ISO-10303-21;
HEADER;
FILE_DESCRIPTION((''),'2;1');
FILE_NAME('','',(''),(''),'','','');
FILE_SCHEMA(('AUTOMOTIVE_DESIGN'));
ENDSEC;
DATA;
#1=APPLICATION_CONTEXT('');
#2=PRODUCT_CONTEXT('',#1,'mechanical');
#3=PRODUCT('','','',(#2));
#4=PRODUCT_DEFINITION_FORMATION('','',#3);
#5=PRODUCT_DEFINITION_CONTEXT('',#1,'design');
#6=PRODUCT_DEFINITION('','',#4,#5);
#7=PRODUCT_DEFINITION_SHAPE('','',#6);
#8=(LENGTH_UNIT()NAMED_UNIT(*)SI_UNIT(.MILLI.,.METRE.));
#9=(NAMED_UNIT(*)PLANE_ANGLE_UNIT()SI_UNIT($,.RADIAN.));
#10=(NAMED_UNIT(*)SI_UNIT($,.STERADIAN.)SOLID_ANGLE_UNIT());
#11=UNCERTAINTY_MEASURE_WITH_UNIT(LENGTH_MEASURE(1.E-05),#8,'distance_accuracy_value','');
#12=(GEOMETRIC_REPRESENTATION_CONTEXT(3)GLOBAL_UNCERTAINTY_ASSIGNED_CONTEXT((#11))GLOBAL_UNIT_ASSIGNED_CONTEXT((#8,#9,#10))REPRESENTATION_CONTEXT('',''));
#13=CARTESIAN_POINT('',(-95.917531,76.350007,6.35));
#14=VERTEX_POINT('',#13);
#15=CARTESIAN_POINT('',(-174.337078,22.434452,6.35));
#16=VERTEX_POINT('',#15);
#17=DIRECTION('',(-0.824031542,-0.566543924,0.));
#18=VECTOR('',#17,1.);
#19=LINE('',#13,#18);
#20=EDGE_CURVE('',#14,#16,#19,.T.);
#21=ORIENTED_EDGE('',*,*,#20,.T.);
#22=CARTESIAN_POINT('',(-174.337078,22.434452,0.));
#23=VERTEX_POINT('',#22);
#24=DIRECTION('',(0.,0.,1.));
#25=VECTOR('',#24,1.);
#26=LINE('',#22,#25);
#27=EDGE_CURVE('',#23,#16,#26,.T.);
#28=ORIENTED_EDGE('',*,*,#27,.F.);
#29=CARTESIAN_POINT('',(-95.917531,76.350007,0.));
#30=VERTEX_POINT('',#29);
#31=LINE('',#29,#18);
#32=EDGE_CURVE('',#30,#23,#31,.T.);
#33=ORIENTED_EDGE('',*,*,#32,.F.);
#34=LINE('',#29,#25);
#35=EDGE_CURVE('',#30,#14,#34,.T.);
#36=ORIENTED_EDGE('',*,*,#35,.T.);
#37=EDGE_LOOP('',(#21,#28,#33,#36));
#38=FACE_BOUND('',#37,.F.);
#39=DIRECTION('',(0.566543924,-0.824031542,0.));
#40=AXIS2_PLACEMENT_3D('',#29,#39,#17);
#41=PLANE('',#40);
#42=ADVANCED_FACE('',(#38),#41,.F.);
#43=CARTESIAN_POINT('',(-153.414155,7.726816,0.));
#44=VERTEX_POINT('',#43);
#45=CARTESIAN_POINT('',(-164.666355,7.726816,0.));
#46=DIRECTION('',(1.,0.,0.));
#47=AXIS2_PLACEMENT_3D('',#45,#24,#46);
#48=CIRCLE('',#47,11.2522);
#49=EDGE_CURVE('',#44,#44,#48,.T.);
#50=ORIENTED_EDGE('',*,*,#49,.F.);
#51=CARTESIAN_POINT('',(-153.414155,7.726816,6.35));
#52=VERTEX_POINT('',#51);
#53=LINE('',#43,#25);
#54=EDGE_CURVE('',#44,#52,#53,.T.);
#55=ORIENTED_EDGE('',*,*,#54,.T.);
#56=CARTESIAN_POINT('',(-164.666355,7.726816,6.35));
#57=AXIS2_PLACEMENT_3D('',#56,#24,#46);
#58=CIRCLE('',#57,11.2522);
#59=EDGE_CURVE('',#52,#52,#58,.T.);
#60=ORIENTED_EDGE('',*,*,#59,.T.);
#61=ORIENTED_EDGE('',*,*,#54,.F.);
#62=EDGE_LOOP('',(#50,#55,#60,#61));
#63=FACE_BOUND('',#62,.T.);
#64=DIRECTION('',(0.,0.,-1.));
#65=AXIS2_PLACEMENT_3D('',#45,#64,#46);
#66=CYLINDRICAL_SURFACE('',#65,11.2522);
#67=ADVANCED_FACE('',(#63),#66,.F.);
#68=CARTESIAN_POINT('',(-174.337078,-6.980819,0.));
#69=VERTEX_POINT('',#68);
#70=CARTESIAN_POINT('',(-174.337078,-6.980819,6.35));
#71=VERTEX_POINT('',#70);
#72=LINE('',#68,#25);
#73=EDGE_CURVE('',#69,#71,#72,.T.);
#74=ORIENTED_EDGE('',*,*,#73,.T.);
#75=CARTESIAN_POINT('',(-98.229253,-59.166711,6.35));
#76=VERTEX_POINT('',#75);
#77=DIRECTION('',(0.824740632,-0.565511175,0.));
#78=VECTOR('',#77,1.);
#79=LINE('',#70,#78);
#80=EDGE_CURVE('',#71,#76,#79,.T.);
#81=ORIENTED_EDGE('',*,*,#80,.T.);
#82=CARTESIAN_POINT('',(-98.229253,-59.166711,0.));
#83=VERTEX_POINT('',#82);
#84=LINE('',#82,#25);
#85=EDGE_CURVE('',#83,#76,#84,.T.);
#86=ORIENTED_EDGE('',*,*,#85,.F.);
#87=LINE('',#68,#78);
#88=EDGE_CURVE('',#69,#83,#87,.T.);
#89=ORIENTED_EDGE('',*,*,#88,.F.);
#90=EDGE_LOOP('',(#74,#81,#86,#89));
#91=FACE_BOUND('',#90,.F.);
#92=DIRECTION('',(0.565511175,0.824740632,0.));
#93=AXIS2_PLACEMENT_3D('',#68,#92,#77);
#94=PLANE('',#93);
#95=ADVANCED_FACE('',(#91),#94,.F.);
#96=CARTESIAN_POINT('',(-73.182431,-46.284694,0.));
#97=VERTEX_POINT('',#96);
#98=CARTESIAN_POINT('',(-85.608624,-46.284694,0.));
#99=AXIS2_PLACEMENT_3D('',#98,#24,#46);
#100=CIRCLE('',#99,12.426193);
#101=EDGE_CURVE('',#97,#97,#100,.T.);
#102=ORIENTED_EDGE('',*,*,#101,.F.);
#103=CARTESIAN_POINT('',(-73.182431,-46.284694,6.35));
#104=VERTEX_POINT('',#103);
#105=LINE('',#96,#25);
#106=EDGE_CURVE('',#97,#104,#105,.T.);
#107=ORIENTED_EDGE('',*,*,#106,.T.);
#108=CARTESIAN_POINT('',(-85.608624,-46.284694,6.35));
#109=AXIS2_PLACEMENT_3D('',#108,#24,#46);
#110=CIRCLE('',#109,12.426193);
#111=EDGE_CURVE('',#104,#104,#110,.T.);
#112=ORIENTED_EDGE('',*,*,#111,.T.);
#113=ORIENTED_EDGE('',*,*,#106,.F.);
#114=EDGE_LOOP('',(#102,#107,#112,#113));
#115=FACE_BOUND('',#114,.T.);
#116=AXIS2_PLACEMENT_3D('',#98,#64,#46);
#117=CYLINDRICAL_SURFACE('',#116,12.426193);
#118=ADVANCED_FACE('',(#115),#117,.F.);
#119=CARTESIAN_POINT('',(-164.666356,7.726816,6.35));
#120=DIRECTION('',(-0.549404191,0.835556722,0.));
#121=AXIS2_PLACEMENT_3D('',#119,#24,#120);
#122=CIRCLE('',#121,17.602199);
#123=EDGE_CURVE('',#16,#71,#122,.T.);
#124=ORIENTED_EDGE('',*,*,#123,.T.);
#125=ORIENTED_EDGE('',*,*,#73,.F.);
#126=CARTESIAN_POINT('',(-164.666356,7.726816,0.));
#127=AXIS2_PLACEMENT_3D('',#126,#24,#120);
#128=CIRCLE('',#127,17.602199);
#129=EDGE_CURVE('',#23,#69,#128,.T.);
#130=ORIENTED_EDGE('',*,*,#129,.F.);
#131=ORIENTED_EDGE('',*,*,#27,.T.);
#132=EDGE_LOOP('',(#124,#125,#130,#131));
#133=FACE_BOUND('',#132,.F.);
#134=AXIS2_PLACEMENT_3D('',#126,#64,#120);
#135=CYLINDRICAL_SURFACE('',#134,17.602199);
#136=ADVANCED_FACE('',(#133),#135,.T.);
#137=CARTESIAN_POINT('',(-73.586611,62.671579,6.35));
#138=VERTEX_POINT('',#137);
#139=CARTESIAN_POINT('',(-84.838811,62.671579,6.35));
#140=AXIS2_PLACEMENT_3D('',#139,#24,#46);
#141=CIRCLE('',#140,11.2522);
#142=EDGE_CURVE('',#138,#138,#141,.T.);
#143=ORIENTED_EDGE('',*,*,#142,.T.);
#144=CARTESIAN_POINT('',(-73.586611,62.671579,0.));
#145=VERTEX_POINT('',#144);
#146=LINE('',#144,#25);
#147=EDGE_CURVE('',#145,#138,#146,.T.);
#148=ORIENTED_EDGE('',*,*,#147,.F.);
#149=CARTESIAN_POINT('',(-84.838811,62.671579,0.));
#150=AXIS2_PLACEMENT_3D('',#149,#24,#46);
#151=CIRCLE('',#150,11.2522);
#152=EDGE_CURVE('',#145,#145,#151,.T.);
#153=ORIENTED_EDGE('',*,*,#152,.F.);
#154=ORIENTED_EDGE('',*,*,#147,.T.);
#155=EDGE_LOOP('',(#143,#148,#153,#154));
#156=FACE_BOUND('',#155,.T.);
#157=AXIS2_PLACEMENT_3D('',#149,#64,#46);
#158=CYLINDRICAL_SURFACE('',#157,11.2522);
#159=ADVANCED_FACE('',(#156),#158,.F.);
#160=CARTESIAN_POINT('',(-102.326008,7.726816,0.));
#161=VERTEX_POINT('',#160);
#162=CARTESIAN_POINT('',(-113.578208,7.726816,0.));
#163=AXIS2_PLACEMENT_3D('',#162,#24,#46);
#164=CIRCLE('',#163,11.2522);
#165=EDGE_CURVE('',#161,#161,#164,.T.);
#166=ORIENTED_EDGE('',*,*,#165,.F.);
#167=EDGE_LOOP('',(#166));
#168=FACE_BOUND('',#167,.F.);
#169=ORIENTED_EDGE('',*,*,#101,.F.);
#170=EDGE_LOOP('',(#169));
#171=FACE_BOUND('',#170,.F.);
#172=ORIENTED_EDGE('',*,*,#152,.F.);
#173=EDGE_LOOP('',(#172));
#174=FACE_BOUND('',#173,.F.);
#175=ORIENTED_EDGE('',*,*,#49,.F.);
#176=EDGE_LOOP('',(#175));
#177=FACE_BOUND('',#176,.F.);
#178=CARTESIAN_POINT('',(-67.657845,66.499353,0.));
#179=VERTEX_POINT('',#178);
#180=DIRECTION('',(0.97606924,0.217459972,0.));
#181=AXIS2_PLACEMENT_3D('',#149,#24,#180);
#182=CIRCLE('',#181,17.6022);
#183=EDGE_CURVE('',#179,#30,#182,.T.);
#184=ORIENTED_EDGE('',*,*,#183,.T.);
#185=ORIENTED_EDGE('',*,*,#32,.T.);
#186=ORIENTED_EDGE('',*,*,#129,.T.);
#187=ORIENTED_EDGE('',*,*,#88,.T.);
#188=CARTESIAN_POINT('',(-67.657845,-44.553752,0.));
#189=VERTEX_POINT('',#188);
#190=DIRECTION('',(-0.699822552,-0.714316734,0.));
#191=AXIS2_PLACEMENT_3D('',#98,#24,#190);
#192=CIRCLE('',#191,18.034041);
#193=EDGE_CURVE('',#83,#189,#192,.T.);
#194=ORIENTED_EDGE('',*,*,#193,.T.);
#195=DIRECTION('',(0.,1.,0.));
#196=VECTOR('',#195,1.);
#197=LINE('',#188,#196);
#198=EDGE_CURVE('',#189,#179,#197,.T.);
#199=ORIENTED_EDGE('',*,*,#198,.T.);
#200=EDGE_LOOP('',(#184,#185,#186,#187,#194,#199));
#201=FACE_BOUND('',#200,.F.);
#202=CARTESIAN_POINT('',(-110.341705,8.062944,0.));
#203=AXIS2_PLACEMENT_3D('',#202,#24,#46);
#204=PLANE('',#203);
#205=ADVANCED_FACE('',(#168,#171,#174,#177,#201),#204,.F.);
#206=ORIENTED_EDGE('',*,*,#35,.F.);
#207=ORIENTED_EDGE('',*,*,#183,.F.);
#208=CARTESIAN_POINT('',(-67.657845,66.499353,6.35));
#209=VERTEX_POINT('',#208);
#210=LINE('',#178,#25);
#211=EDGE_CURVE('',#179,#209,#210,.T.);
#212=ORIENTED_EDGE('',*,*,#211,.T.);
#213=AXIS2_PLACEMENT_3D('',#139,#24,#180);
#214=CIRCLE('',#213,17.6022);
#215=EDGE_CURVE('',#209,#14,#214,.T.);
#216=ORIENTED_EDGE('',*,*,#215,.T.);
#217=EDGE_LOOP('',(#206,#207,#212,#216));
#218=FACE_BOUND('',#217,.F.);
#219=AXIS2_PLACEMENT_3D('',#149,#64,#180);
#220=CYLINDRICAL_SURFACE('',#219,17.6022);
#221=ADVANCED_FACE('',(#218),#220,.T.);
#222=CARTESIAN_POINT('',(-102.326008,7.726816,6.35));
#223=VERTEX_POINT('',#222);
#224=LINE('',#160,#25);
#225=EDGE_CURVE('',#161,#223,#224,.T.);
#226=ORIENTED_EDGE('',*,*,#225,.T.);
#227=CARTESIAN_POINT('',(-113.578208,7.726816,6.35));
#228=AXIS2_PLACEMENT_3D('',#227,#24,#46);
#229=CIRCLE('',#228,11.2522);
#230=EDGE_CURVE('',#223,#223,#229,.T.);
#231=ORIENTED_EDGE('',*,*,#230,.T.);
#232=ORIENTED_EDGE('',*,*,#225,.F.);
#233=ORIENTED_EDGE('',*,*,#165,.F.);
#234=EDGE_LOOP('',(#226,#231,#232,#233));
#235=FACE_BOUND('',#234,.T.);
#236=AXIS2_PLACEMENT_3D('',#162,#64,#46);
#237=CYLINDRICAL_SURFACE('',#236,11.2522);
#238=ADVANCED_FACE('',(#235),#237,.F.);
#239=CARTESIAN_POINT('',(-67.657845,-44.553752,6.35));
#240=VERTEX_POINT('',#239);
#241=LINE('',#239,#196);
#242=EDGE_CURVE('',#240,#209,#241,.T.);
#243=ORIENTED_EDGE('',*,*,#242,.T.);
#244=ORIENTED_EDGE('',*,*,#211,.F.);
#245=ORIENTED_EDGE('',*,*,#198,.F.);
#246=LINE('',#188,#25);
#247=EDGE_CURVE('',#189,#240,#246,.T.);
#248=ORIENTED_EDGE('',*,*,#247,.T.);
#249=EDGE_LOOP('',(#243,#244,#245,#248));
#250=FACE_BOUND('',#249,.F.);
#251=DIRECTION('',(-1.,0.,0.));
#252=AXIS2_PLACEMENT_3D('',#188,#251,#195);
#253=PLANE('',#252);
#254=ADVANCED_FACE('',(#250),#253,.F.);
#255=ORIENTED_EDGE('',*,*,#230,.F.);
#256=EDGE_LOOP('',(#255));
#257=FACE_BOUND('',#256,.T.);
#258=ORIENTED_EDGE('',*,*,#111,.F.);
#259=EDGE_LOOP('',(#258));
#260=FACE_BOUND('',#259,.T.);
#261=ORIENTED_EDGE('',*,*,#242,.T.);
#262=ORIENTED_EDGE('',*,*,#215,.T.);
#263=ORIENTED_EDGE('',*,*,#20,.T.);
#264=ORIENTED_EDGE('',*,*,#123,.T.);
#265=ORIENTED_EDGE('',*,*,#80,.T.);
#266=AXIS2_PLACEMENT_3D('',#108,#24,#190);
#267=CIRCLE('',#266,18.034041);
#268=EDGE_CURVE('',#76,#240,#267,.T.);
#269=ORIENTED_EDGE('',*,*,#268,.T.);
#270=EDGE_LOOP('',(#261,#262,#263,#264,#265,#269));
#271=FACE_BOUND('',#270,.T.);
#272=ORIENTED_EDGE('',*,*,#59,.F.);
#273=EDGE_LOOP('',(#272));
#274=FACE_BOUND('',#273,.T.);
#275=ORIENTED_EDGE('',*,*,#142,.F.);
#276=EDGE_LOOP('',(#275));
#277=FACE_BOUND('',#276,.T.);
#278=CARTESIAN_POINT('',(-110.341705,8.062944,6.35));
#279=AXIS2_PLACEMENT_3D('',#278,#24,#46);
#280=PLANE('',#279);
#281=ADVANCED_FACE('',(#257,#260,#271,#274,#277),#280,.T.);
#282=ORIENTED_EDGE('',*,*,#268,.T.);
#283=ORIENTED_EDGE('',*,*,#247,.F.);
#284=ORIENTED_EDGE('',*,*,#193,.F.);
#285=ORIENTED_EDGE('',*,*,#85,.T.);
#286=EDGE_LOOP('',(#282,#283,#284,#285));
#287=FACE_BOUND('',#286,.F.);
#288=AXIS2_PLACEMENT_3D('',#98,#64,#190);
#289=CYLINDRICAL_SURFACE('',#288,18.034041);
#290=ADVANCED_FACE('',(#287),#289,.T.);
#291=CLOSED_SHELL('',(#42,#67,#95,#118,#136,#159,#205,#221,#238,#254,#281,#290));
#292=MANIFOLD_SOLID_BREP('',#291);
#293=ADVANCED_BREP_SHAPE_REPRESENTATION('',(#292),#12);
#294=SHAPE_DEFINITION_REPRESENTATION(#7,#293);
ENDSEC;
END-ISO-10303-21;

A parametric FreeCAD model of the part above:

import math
import FreeCAD as App
import Part
import Sketcher

V = App.Vector
Q = App.Units.Quantity

doc = App.newDocument("Part")
params = doc.addObject("Spreadsheet::Sheet", "Params")
for row, (alias, value) in enumerate([
    ("sketch1_diameter", "0.886 in"),
    ("sketch1_radius", "0.693 in"),
    ("pad1_length", "0.25 in"),
], start=1):
    params.set(f"A{row}", alias)
    params.set(f"B{row}", "=" + value)
    params.setAlias(f"B{row}", alias)

body = doc.addObject("PartDesign::Body", "Body")

# Sketch on XY plane
sketch1 = body.newObject("Sketcher::SketchObject", "Sketch")
sketch1.AttachmentSupport = (doc.getObject("XY_Plane"), [""])
sketch1.MapMode = "FlatFace"
sketch1.addGeometry(Part.LineSegment(V(-68, -45, 0), V(-68, 66, 0)), False)
sketch1.addGeometry(Part.ArcOfCircle(Part.Circle(V(-85, 63, 0), V(0, 0, 1), 18), math.radians(13), math.radians(129)), False)
sketch1.addGeometry(Part.LineSegment(V(-96, 76, 0), V(-174, 22, 0)), False)
sketch1.addGeometry(Part.ArcOfCircle(Part.Circle(V(-165, 8, 0), V(0, 0, 1), 18), math.radians(123), math.radians(237)), False)
sketch1.addGeometry(Part.LineSegment(V(-174, -7, 0), V(-98, -59, 0)), False)
sketch1.addGeometry(Part.ArcOfCircle(Part.Circle(V(-86, -46, 0), V(0, 0, 1), 18), math.radians(-134), math.radians(6)), False)
sketch1.addGeometry(Part.Circle(V(-86, -46, 0), V(0, 0, 1), 12), False)
sketch1.addGeometry(Part.Circle(V(-165, 8, 0), V(0, 0, 1), 11), False)
sketch1.addGeometry(Part.Circle(V(-114, 8, 0), V(0, 0, 1), 11), False)
sketch1.addGeometry(Part.Circle(V(-85, 63, 0), V(0, 0, 1), 11), False)
sketch1.addConstraint(Sketcher.Constraint("Coincident", 0, 2, 1, 1))
sketch1.addConstraint(Sketcher.Constraint("Coincident", 1, 2, 2, 1))
sketch1.addConstraint(Sketcher.Constraint("Coincident", 2, 2, 3, 1))
sketch1.addConstraint(Sketcher.Constraint("Coincident", 3, 2, 4, 1))
sketch1.addConstraint(Sketcher.Constraint("Coincident", 4, 2, 5, 1))
sketch1.addConstraint(Sketcher.Constraint("Coincident", 5, 2, 0, 1))
sketch1.addConstraint(Sketcher.Constraint("Vertical", 0))
sketch1.addConstraint(Sketcher.Constraint("Coincident", 6, 3, 5, 3))
sketch1.addConstraint(Sketcher.Constraint("Coincident", 7, 3, 3, 3))
sketch1.addConstraint(Sketcher.Constraint("Coincident", 9, 3, 1, 3))
sketch1.addConstraint(Sketcher.Constraint("Equal", 1, 3))
sketch1.addConstraint(Sketcher.Constraint("Equal", 7, 8))
sketch1.addConstraint(Sketcher.Constraint("Equal", 8, 9))
sketch1.addConstraint(Sketcher.Constraint("Horizontal", 7, 3, 8, 3))
sketch1.addConstraint(Sketcher.Constraint("Vertical", 2, 2, 3, 2))
sketch1.addConstraint(Sketcher.Constraint("Diameter", 7, Q("0.886 in")))
sketch1.addConstraint(Sketcher.Constraint("Radius", 1, Q("0.693 in")))
sketch1.addConstraint(Sketcher.Constraint("Radius", 5, Q("18.034041 mm")))
sketch1.addConstraint(Sketcher.Constraint("Diameter", 6, Q("24.852386 mm")))
sketch1.addConstraint(Sketcher.Constraint("Distance", 2, Q("95.16571 mm")))
sketch1.addConstraint(Sketcher.Constraint("Distance", 4, Q("92.280921 mm")))
sketch1.addConstraint(Sketcher.Constraint("DistanceY", 0, 1, 0, 2, Q("111.053105 mm")))
sketch1.addConstraint(Sketcher.Constraint("DistanceX", 1, 3, -1, 1, Q("84.838811 mm")))
sketch1.addConstraint(Sketcher.Constraint("DistanceY", -1, 1, 1, 3, Q("62.671579 mm")))
sketch1.addConstraint(Sketcher.Constraint("DistanceX", 8, 3, -1, 1, Q("113.578208 mm")))
sketch1.addConstraint(Sketcher.Constraint("DistanceX", 1, 2, -1, 1, Q("95.917531 mm")))
sketch1.addConstraint(Sketcher.Constraint("DistanceX", 2, 2, -1, 1, Q("174.337078 mm")))
sketch1.addConstraint(Sketcher.Constraint("DistanceY", 3, 2, -1, 1, Q("6.980819 mm")))
sketch1.addConstraint(Sketcher.Constraint("DistanceY", 4, 2, -1, 1, Q("59.166711 mm")))
sketch1.addConstraint(Sketcher.Constraint("DistanceX", 3, 3, 5, 3, Q("79.057732 mm")))
sketch1.setExpression("Constraints[15]", "Params.sketch1_diameter")
sketch1.setExpression("Constraints[16]", "Params.sketch1_radius")
pad1 = body.newObject("PartDesign::Pad", "Pad")
pad1.Profile = sketch1
pad1.setExpression("Length", "Params.pad1_length")

doc.recompute()
